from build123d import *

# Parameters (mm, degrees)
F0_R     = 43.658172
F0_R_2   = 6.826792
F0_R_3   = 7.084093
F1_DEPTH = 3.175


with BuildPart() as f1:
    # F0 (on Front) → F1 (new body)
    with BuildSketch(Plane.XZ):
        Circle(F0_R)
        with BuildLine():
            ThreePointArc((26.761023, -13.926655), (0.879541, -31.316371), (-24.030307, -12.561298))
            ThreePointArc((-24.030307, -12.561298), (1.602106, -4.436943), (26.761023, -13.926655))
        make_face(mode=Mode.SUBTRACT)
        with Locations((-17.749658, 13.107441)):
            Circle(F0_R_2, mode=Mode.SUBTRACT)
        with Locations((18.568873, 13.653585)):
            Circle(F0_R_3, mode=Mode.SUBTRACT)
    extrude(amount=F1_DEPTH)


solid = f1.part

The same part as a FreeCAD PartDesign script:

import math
import FreeCAD as App
import Part
import Sketcher

V = App.Vector
Q = App.Units.Quantity

doc = App.newDocument("Part")
body = doc.addObject("PartDesign::Body", "Body")

sketch1 = body.newObject("Sketcher::SketchObject", "Sketch")
sketch1.AttachmentSupport = (doc.getObject("XZ_Plane"), [""])
sketch1.MapMode = "FlatFace"
sketch1.addGeometry([
    Part.Circle(V(0, 0, 0), V(0, 0, 1), 43.658172),
    Part.ArcOfCircle(Part.Circle(V(0.499458, -45.455502, 0), V(0, 0, 1), 41.033376), math.radians(50.207809), math.radians(126.712517)),
    Part.ArcOfCircle(Part.Circle(V(1.602106, -4.436943, 0), V(0, 0, 1), 26.889138), math.radians(-162.41366), math.radians(-20.666013)),
    Part.Circle(V(-17.749658, 13.107441, 0), V(0, 0, 1), 6.826792),
    Part.Circle(V(18.568873, 13.653585, 0), V(0, 0, 1), 7.084093),
], False)
sketch1.addConstraint([
    Sketcher.Constraint("Coincident", 1, 1, 2, 2),
    Sketcher.Constraint("Coincident", 2, 1, 1, 2),
    Sketcher.Constraint("Coincident", 0, 3, -1, 1),
    Sketcher.Constraint("Diameter", 0, Q("87.316344 mm")),
    Sketcher.Constraint("Diameter", 3, Q("13.653584 mm")),
    Sketcher.Constraint("Diameter", 4, Q("14.168186 mm")),
    Sketcher.Constraint("Radius", 1, Q("41.033376 mm")),
    Sketcher.Constraint("Radius", 2, Q("26.889138 mm")),
    Sketcher.Constraint("DistanceY", 1, 3, -1, 1, Q("45.455502 mm")),
    Sketcher.Constraint("DistanceY", 2, 1, -1, 1, Q("12.561298 mm")),
    Sketcher.Constraint("DistanceX", 3, 3, -1, 1, Q("17.749658 mm")),
    Sketcher.Constraint("DistanceY", -1, 1, 3, 3, Q("13.107441 mm")),
    Sketcher.Constraint("DistanceX", 1, 3, 2, 3, Q("1.102648 mm")),
    Sketcher.Constraint("DistanceY", 2, 3, 4, 3, Q("18.090528 mm")),
    Sketcher.Constraint("DistanceX", 3, 3, 4, 3, Q("36.318531 mm")),
    Sketcher.Constraint("DistanceX", 4, 3, 1, 1, Q("8.19215 mm")),
])
pad1 = body.newObject("PartDesign::Pad", "Pad")
pad1.Profile = sketch1
pad1.Length = Q("0.125 in")

doc.recompute()
